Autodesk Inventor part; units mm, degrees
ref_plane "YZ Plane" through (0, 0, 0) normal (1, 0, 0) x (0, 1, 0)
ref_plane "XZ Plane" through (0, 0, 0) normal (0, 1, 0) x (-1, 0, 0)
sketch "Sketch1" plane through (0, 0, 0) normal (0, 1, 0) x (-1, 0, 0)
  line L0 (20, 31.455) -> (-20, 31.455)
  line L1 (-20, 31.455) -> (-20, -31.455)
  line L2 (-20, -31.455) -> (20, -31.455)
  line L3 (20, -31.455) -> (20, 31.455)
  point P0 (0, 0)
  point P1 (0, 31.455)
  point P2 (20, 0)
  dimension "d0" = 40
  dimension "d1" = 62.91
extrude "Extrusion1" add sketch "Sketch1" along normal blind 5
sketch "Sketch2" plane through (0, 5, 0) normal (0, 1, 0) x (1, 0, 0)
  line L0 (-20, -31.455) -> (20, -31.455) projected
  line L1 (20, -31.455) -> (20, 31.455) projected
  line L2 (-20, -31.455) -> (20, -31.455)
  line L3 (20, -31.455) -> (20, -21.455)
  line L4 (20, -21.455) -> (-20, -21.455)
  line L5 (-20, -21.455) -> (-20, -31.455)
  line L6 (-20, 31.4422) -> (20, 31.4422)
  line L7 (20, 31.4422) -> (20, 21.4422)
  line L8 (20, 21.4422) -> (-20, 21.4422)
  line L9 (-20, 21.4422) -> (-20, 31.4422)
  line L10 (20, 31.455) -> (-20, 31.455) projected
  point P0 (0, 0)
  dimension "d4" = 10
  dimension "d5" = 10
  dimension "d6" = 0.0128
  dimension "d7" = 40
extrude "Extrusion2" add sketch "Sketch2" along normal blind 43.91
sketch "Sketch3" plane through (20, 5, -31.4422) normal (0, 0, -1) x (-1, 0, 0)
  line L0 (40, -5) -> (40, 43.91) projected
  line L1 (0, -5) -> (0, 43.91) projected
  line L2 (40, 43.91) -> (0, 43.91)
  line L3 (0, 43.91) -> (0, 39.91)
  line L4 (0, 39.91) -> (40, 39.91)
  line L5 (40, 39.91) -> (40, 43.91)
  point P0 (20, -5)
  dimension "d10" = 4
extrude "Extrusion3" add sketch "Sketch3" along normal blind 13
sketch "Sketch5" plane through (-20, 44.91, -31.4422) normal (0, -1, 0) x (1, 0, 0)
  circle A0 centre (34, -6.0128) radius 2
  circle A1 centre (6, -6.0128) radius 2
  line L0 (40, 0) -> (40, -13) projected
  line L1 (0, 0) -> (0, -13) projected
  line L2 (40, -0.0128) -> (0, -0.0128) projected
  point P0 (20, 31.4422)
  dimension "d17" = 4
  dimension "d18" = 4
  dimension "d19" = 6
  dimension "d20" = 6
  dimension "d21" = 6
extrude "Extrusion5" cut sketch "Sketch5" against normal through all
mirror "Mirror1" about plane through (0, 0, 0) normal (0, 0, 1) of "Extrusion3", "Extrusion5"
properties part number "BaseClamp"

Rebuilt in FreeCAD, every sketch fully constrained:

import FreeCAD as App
import Part
import Sketcher


def add_polygon(sketch, points):
    """Adds a closed chain of lines whose ends are joined by coincident constraints."""
    first, n = sketch.GeometryCount, len(points)
    for a, b in zip(points, points[1:] + points[:1]):
        sketch.addGeometry(Part.LineSegment(App.Vector(*a, 0), App.Vector(*b, 0)), False)
    for i in range(n):
        sketch.addConstraint(Sketcher.Constraint("Coincident", first + i, 2, first + (i + 1) % n, 1))

doc = App.newDocument("Part")
body = doc.addObject("PartDesign::Body", "Body")

# Sketch on XZ plane
sketch1 = doc.addObject("Sketcher::SketchObject", "Sketch")
body.addObject(sketch1)
sketch1.AttachmentSupport = (doc.XZ_Plane, [""])
sketch1.MapMode = "FlatFace"
add_polygon(sketch1, [(-20, -31), (-20, 31), (20, 31), (20, -31)])  # lines 0-3
sketch1.addConstraint([
    Sketcher.Constraint("Vertical", 0),
    Sketcher.Constraint("Horizontal", 1),
    Sketcher.Constraint("Vertical", 2),
    Sketcher.Constraint("Horizontal", 3),
    Sketcher.Constraint("Symmetric", 0, 2, 2, 2, -1, 1),
    Sketcher.Constraint("DistanceX", 1, 1, 1, 2, 40.0),
    Sketcher.Constraint("DistanceY", 0, 1, 0, 2, 62.91),
])
pad1 = doc.addObject("PartDesign::Pad", "Pad")
body.addObject(pad1)
pad1.Profile = sketch1
pad1.Length = 5
pad1.Reversed = True

# Sketch on XZ plane
sketch2 = doc.addObject("Sketcher::SketchObject", "Sketch001")
body.addObject(sketch2)
sketch2.AttachmentSupport = (doc.XZ_Plane, [""])
sketch2.MapMode = "FlatFace"
sketch2.AttachmentOffset = App.Placement(App.Vector(0, 0, -5), App.Rotation())
add_polygon(sketch2, [(-20, 21), (-20, 31), (20, 31), (20, 21)])  # lines 0-3
add_polygon(sketch2, [(-20, -21), (20, -21), (20, -31), (-20, -31)])  # lines 4-7
sketch2.addConstraint([
    Sketcher.Constraint("Vertical", 0),
    Sketcher.Constraint("Horizontal", 1),
    Sketcher.Constraint("Vertical", 2),
    Sketcher.Constraint("Horizontal", 3),
    Sketcher.Constraint("Horizontal", 4),
    Sketcher.Constraint("Vertical", 5),
    Sketcher.Constraint("Horizontal", 6),
    Sketcher.Constraint("Vertical", 7),
    Sketcher.Constraint("Vertical", 2, 2, 4, 2),
    Sketcher.Constraint("Vertical", 3, 2, 6, 2),
    Sketcher.Constraint("Equal", 2, 5),
    Sketcher.Constraint("DistanceX", 1, 1, 1, 2, 40.0),
    Sketcher.Constraint("DistanceY", 0, 1, 0, 2, 10.0),
    Sketcher.Constraint("DistanceX", 0, 2, -1, 1, 20.0),
    Sketcher.Constraint("DistanceY", -1, 1, 0, 2, 31.455),
    Sketcher.Constraint("DistanceY", 4, 2, -1, 1, 21.4422),
])
pad2 = doc.addObject("PartDesign::Pad", "Pad001")
body.addObject(pad2)
pad2.Profile = sketch2
pad2.Length = 43.91
pad2.Reversed = True

# Sketch on XY plane
sketch3 = doc.addObject("Sketcher::SketchObject", "Sketch002")
body.addObject(sketch3)
sketch3.AttachmentSupport = (doc.XY_Plane, [""])
sketch3.MapMode = "FlatFace"
sketch3.AttachmentOffset = App.Placement(App.Vector(0, 0, -31.4422), App.Rotation())
add_polygon(sketch3, [(20, 44.9), (-20, 44.9), (-20, 48.9), (20, 48.9)])  # lines 0-3
sketch3.addConstraint([
    Sketcher.Constraint("Horizontal", 0),
    Sketcher.Constraint("Vertical", 1),
    Sketcher.Constraint("Horizontal", 2),
    Sketcher.Constraint("Vertical", 3),
    Sketcher.Constraint("DistanceY", 1, 1, 1, 2, 4.0),
    Sketcher.Constraint("DistanceX", 0, 2, 0, 1, 40.0),
    Sketcher.Constraint("DistanceX", 0, 2, -1, 1, 20.0),
    Sketcher.Constraint("DistanceY", -1, 1, 0, 2, 44.91),
])
pad3 = doc.addObject("PartDesign::Pad", "Pad002")
body.addObject(pad3)
pad3.Profile = sketch3
pad3.Length = 13
pad3.Reversed = True

# Sketch on XZ plane
sketch4 = doc.addObject("Sketcher::SketchObject", "Sketch003")
body.addObject(sketch4)
sketch4.AttachmentSupport = (doc.XZ_Plane, [""])
sketch4.MapMode = "FlatFace"
sketch4.AttachmentOffset = App.Placement(App.Vector(0, 0, -44.91), App.Rotation())
sketch4.addGeometry([
    Part.Circle(App.Vector(14, -37.5, 0), App.Vector(0, 0, 1), 2),
    Part.Circle(App.Vector(-14, -37.5, 0), App.Vector(0, 0, 1), 2),
], False)
sketch4.addConstraint([
    Sketcher.Constraint("Equal", 0, 1),
    Sketcher.Constraint("Symmetric", 0, 3, 1, 3, -2),
    Sketcher.Constraint("Diameter", 0, 4.0),
    Sketcher.Constraint("DistanceX", -1, 1, 0, 3, 14.0),
    Sketcher.Constraint("DistanceY", 0, 3, -1, 1, 37.455),
])
pocket1 = doc.addObject("PartDesign::Pocket", "Pocket")
body.addObject(pocket1)
pocket1.Profile = sketch4
pocket1.Type = "ThroughAll"
doc.recompute()

mirrored = doc.addObject("PartDesign::Mirrored", "Mirrored")
body.addObject(mirrored)
mirrored.Originals = [pad3, pocket1]
mirrored.MirrorPlane = (doc.XY_Plane, [""])
body.Tip = mirrored

doc.recompute()
